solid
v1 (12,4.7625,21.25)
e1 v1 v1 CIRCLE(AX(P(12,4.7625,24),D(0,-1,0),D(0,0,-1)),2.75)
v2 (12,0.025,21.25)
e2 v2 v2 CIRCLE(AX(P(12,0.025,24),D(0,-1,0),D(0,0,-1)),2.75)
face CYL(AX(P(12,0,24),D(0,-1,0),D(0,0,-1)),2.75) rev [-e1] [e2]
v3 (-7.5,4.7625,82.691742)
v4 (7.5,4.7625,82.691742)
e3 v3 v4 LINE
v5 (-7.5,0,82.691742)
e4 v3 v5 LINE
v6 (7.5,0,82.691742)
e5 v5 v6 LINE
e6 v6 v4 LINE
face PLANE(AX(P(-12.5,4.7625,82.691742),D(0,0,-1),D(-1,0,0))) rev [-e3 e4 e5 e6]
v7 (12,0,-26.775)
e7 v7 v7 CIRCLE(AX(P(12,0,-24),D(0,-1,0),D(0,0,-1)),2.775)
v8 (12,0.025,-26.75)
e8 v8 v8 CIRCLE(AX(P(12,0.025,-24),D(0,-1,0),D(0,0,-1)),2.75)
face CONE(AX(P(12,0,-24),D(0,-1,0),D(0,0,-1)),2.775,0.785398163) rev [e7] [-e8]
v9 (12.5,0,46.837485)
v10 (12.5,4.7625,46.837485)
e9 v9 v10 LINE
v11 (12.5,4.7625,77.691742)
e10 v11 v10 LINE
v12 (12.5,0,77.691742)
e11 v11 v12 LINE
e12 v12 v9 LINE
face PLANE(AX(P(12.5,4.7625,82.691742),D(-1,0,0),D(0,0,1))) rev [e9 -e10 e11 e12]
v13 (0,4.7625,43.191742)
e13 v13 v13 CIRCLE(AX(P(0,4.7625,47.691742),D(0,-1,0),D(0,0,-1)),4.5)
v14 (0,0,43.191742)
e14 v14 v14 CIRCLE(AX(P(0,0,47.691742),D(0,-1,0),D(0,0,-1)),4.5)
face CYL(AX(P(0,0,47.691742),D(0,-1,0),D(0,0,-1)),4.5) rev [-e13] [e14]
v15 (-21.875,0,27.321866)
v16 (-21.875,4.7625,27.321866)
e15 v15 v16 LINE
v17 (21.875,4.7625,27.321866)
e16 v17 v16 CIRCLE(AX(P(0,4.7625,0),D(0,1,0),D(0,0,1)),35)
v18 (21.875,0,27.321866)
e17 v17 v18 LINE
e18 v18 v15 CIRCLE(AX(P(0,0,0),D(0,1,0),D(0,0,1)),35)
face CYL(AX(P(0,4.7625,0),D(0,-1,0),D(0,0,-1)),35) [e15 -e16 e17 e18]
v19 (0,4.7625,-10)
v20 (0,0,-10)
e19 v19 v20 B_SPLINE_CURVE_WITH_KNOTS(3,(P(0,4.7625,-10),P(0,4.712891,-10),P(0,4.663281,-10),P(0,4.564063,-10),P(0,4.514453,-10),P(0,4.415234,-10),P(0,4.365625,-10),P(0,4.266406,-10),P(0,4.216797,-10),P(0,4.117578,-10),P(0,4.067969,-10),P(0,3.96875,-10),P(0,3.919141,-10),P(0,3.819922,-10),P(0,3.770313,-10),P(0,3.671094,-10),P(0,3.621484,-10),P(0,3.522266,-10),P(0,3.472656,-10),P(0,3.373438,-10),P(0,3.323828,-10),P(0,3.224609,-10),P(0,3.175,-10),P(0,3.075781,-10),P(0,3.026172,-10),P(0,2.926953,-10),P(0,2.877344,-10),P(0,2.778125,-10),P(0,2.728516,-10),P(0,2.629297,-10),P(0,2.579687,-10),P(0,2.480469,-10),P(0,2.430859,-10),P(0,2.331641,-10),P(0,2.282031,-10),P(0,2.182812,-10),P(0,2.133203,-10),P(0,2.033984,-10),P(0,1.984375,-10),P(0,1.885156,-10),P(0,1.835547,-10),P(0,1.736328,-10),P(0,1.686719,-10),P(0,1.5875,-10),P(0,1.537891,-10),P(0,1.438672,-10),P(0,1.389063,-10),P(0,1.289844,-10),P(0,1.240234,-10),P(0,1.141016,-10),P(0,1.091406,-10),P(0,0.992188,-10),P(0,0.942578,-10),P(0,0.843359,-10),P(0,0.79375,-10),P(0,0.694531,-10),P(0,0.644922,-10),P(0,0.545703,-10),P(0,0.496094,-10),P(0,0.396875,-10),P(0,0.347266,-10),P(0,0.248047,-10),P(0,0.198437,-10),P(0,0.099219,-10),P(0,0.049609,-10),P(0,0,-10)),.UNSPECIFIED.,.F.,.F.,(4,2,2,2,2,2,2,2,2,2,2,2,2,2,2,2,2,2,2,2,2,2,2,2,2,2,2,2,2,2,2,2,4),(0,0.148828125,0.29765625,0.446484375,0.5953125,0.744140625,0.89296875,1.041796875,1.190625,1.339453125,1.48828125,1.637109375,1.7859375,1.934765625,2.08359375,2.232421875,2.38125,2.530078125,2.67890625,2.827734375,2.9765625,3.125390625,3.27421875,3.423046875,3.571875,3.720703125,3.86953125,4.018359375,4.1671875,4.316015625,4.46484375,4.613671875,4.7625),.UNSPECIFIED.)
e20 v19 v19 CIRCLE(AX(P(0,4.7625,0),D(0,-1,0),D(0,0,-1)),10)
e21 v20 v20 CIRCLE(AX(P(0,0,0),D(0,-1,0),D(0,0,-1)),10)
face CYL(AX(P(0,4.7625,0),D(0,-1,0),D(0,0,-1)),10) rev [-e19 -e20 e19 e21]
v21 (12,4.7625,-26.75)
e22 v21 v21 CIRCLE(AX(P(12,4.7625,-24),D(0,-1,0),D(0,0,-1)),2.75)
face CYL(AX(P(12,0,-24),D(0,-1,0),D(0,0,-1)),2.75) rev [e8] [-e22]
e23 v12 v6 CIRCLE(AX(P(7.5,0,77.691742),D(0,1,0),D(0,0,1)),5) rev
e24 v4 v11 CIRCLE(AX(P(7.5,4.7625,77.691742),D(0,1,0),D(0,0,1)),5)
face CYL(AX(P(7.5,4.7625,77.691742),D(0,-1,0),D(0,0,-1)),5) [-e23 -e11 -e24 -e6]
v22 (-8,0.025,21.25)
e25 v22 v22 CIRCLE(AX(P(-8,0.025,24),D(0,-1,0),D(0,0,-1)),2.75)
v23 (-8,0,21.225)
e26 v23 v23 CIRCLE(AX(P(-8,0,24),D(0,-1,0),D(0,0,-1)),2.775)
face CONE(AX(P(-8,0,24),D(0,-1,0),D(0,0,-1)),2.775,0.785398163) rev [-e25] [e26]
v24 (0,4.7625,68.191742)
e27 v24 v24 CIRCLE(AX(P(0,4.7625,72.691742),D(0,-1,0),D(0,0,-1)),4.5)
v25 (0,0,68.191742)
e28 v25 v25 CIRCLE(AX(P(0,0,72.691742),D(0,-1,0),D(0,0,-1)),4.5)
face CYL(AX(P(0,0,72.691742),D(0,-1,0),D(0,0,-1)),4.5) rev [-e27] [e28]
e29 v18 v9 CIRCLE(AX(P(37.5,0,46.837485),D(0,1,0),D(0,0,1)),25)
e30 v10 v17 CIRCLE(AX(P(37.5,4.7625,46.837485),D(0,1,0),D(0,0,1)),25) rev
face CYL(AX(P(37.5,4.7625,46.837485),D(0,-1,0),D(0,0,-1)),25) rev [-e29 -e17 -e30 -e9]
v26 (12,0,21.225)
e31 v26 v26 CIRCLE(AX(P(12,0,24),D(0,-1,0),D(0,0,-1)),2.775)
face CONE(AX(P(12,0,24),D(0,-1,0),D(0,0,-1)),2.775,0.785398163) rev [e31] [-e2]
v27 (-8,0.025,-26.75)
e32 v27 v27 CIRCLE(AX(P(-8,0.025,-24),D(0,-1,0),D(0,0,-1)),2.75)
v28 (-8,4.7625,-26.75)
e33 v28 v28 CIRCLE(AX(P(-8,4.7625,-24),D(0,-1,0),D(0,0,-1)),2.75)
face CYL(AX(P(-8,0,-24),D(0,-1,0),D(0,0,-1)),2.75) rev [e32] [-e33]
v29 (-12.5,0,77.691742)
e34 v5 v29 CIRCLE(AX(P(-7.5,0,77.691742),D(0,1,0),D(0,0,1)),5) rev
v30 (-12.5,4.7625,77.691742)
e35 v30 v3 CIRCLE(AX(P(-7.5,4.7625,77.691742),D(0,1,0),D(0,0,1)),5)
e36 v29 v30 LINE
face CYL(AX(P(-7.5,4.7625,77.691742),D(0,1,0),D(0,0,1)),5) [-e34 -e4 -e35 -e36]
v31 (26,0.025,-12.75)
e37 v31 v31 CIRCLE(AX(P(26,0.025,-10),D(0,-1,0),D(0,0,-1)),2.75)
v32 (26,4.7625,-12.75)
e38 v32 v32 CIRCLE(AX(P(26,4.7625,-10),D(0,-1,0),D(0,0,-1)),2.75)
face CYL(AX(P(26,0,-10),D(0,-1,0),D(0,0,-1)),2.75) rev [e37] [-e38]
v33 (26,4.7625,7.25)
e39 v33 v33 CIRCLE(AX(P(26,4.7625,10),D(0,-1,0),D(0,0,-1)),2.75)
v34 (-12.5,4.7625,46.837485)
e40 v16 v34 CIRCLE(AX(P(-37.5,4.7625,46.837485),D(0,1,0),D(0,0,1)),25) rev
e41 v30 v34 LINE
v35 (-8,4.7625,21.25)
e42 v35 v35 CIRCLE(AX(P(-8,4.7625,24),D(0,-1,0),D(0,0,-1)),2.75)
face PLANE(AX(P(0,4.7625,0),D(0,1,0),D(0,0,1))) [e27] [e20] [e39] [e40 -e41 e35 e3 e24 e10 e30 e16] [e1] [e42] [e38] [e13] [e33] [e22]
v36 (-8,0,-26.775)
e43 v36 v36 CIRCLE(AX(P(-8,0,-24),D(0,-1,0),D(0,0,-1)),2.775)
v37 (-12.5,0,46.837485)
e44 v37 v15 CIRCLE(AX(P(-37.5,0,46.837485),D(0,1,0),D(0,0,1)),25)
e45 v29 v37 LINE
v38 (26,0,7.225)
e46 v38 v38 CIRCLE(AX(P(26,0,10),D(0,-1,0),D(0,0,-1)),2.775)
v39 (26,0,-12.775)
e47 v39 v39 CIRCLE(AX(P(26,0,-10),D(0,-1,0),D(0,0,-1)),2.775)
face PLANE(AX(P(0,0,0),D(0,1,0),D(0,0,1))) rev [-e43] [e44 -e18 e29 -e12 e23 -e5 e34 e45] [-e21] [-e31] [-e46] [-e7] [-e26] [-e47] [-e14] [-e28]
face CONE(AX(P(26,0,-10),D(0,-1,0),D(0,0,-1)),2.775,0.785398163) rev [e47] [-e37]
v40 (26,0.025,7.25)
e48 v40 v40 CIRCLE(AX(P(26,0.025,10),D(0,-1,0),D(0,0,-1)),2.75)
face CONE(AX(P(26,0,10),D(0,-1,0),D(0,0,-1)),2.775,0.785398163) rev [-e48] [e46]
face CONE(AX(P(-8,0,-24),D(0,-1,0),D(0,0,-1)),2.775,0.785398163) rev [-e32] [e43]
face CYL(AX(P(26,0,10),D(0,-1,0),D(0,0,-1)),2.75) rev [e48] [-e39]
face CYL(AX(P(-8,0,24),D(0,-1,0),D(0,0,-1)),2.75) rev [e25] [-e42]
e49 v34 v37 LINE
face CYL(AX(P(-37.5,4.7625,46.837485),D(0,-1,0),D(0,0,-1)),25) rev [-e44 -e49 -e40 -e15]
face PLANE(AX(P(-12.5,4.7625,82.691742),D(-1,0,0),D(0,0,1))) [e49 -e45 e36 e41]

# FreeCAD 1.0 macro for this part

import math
import FreeCAD as App
import Part
import Sketcher


def edges_at(feature, points):
    """Names of the edges that pass closest to the given points."""
    edges = feature.Shape.Edges
    near = lambda p: min(range(len(edges)), key=lambda i: edges[i].distToShape(Part.Vertex(*p))[0])
    return sorted({f"Edge{near(p) + 1}" for p in points})

doc = App.newDocument("Part")
body = doc.addObject("PartDesign::Body", "Body")

sketch1 = body.newObject("Sketcher::SketchObject", "Sketch")
sketch1.AttachmentSupport = (doc.getObject("XZ_Plane"), [""])
sketch1.MapMode = "FlatFace"
sketch1.addGeometry(Part.LineSegment(App.Vector(-12, 83, 0), App.Vector(12, 83, 0)), False)
sketch1.addGeometry(Part.LineSegment(App.Vector(12, 83, 0), App.Vector(12, 33, 0)), False)
sketch1.addGeometry(Part.ArcOfCircle(Part.Circle(App.Vector(0, 0, 0), App.Vector(0, 0, 1), 35), math.radians(111), math.radians(429)), False)
sketch1.addGeometry(Part.LineSegment(App.Vector(-12, 33, 0), App.Vector(-12, 83, 0)), False)
sketch1.addConstraint(Sketcher.Constraint("Coincident", 0, 2, 1, 1))
sketch1.addConstraint(Sketcher.Constraint("Coincident", 1, 2, 2, 2))
sketch1.addConstraint(Sketcher.Constraint("Coincident", 2, 1, 3, 1))
sketch1.addConstraint(Sketcher.Constraint("Coincident", 3, 2, 0, 1))
sketch1.addConstraint(Sketcher.Constraint("Horizontal", 0))
sketch1.addConstraint(Sketcher.Constraint("Vertical", 1))
sketch1.addConstraint(Sketcher.Constraint("Vertical", 3))
sketch1.addConstraint(Sketcher.Constraint("Coincident", 2, 3, -1, 1))
sketch1.addConstraint(Sketcher.Constraint("Horizontal", 1, 2, 2, 1))
sketch1.addConstraint(Sketcher.Constraint("Radius", 2, 35.0))
sketch1.addConstraint(Sketcher.Constraint("DistanceX", 0, 1, 0, 2, 25.0))
sketch1.addConstraint(Sketcher.Constraint("DistanceY", 1, 2, 1, 1, 50.0))
pad1 = body.newObject("PartDesign::Pad", "Pad")
pad1.Profile = sketch1
pad1.Length = 4.7625
pad1.Reversed = True

sketch2 = body.newObject("Sketcher::SketchObject", "Sketch001")
sketch2.AttachmentSupport = (doc.getObject("XZ_Plane"), [""])
sketch2.MapMode = "FlatFace"
sketch2.addGeometry(Part.Circle(App.Vector(0, 0, 0), App.Vector(0, 0, 1), 10), False)
sketch2.addConstraint(Sketcher.Constraint("Coincident", 0, 3, -1, 1))
sketch2.addConstraint(Sketcher.Constraint("Diameter", 0, 20.0))
pocket1 = body.newObject("PartDesign::Pocket", "Pocket")
pocket1.Profile = sketch2
pocket1.Type = "ThroughAll"

sketch3 = body.newObject("Sketcher::SketchObject", "Sketch002")
sketch3.AttachmentSupport = (doc.getObject("XZ_Plane"), [""])
sketch3.MapMode = "FlatFace"
sketch3.addGeometry(Part.Circle(App.Vector(0, 47.7, 0), App.Vector(0, 0, 1), 4.5), False)
sketch3.addGeometry(Part.Circle(App.Vector(0, 72.7, 0), App.Vector(0, 0, 1), 4.5), False)
sketch3.addConstraint(Sketcher.Constraint("Equal", 0, 1))
sketch3.addConstraint(Sketcher.Constraint("PointOnObject", 0, 3, -2))
sketch3.addConstraint(Sketcher.Constraint("PointOnObject", 1, 3, -2))
sketch3.addConstraint(Sketcher.Constraint("Diameter", 0, 9.0))
sketch3.addConstraint(Sketcher.Constraint("DistanceY", 0, 3, 1, 3, 25.0))
sketch3.addConstraint(Sketcher.Constraint("DistanceY", -1, 1, 0, 3, 47.691742))
doc.recompute()
hole = body.newObject("PartDesign::Hole", "Hole")
hole.Profile = sketch3
hole.ThreadType = "None"
hole.Diameter = 9
hole.DepthType = "ThroughAll"
doc.recompute()

fillet = body.newObject("PartDesign::Fillet", "Fillet")
fillet.Base = (hole, edges_at(hole, [(-12.5, 2.381, 32.692), (12.5, 2.381, 32.692)]))
fillet.Radius = 25

sketch4 = body.newObject("Sketcher::SketchObject", "Sketch003")
sketch4.AttachmentSupport = (doc.getObject("XZ_Plane"), [""])
sketch4.MapMode = "FlatFace"
sketch4.addGeometry(Part.Circle(App.Vector(12, -24, 0), App.Vector(0, 0, 1), 2.8), False)
sketch4.addGeometry(Part.Circle(App.Vector(-8, -24, 0), App.Vector(0, 0, 1), 2.8), False)
sketch4.addGeometry(Part.Circle(App.Vector(26, -10, 0), App.Vector(0, 0, 1), 2.8), False)
sketch4.addGeometry(Part.Circle(App.Vector(26, 10, 0), App.Vector(0, 0, 1), 2.8), False)
sketch4.addGeometry(Part.Circle(App.Vector(12, 24, 0), App.Vector(0, 0, 1), 2.8), False)
sketch4.addGeometry(Part.Circle(App.Vector(-8, 24, 0), App.Vector(0, 0, 1), 2.8), False)
sketch4.addConstraint(Sketcher.Constraint("Equal", 0, 1))
sketch4.addConstraint(Sketcher.Constraint("Equal", 1, 2))
sketch4.addConstraint(Sketcher.Constraint("Equal", 2, 3))
sketch4.addConstraint(Sketcher.Constraint("Equal", 3, 4))
sketch4.addConstraint(Sketcher.Constraint("Equal", 4, 5))
sketch4.addConstraint(Sketcher.Constraint("Symmetric", 2, 3, 3, 3, -1))
sketch4.addConstraint(Sketcher.Constraint("Symmetric", 0, 3, 4, 3, -1))
sketch4.addConstraint(Sketcher.Constraint("Symmetric", 1, 3, 5, 3, -1))
sketch4.addConstraint(Sketcher.Constraint("Horizontal", 0, 3, 1, 3))
sketch4.addConstraint(Sketcher.Constraint("Diameter", 0, 5.5))
sketch4.addConstraint(Sketcher.Constraint("DistanceX", -1, 1, 0, 3, 12.0))
sketch4.addConstraint(Sketcher.Constraint("DistanceY", 0, 3, -1, 1, 24.0))
sketch4.addConstraint(Sketcher.Constraint("DistanceX", 1, 3, -1, 1, 8.0))
sketch4.addConstraint(Sketcher.Constraint("DistanceX", -1, 1, 2, 3, 26.0))
sketch4.addConstraint(Sketcher.Constraint("DistanceY", 2, 3, -1, 1, 10.0))
doc.recompute()
hole2 = body.newObject("PartDesign::Hole", "Hole001")
hole2.Profile = sketch4
hole2.ThreadType = "None"
hole2.Diameter = 5.5
hole2.DepthType = "ThroughAll"
hole2.HoleCutType = "Countersink"
hole2.HoleCutDiameter = 5.55
hole2.HoleCutCountersinkAngle = 90
doc.recompute()

fillet2 = body.newObject("PartDesign::Fillet", "Fillet001")
fillet2.Base = (hole2, edges_at(hole2, [(12.5, 2.381, 82.692), (-12.5, 2.381, 82.692)]))
fillet2.Radius = 5

doc.recompute()
